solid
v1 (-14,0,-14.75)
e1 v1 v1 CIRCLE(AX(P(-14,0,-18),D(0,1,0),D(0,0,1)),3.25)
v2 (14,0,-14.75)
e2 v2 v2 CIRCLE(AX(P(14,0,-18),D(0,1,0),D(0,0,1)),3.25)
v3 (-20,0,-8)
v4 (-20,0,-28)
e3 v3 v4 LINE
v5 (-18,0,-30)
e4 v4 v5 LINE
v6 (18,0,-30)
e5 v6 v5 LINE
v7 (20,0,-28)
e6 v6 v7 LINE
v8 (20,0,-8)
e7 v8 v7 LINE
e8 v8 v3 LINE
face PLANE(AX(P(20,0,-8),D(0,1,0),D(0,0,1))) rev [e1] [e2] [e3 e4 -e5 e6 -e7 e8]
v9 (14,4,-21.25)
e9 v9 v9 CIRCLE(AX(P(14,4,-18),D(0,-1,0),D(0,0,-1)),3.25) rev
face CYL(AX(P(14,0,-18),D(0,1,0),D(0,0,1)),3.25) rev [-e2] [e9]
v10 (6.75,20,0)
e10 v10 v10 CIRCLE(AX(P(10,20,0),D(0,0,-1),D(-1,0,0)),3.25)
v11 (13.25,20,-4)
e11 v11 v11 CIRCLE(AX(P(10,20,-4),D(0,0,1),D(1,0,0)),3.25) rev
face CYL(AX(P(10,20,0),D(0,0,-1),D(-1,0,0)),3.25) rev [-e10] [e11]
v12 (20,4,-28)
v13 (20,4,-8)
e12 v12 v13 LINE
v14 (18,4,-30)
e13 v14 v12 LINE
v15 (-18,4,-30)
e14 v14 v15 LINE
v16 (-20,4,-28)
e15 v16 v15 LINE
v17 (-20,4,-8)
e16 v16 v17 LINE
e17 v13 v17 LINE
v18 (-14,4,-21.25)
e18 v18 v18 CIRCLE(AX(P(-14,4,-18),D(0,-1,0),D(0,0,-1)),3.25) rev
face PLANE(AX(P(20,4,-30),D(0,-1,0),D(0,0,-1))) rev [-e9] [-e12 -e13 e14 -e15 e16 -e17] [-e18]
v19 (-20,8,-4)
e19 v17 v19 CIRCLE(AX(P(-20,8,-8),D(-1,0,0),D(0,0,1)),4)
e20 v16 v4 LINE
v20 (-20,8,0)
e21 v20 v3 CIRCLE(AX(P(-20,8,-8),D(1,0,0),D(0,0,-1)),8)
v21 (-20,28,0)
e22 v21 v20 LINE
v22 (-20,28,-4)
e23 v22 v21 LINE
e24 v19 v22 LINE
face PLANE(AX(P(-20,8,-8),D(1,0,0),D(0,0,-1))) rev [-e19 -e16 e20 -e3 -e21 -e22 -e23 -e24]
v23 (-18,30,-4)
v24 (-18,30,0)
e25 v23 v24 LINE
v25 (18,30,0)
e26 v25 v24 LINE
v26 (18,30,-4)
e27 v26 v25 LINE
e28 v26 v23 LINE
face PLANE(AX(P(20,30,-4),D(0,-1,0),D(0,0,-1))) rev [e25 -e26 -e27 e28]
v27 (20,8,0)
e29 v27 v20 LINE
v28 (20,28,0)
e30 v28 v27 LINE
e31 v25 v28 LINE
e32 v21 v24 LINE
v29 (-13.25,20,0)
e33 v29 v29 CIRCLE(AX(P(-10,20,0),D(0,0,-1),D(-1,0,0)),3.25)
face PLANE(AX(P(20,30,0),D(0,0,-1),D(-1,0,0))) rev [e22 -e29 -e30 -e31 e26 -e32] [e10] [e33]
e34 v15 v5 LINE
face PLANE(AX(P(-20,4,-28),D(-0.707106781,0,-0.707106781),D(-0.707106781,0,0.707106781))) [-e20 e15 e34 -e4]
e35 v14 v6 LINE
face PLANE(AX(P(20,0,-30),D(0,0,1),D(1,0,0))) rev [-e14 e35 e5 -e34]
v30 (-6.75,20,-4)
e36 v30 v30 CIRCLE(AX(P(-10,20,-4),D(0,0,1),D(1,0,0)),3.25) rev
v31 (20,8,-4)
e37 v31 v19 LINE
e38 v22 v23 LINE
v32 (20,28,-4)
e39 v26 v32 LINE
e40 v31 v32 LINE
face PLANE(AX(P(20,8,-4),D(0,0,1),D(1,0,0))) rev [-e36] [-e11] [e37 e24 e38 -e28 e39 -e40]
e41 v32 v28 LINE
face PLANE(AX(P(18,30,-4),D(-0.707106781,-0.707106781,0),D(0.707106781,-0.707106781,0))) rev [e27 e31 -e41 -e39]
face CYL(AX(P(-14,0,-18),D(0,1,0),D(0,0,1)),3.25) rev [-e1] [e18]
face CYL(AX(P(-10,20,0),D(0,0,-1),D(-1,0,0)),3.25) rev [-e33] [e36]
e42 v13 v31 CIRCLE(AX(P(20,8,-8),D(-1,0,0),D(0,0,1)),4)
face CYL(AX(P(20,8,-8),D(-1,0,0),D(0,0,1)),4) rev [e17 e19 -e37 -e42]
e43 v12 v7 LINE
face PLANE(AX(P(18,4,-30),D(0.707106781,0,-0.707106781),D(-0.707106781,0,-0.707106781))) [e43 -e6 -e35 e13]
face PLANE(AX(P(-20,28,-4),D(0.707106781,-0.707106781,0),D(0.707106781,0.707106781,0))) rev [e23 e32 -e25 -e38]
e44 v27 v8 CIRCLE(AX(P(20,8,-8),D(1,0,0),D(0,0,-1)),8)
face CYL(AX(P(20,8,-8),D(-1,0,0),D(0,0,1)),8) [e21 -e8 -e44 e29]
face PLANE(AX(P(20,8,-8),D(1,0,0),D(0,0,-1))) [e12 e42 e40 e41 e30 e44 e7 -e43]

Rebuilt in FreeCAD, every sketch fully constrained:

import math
import FreeCAD as App
import Part
import Sketcher

V = App.Vector
Q = App.Units.Quantity


def add_polygon(sketch, points):
    """Adds a closed chain of lines whose ends are joined by coincident constraints."""
    first, n = sketch.GeometryCount, len(points)
    for a, b in zip(points, points[1:] + points[:1]):
        sketch.addGeometry(Part.LineSegment(App.Vector(*a, 0), App.Vector(*b, 0)), False)
    for i in range(n):
        sketch.addConstraint(Sketcher.Constraint("Coincident", first + i, 2, first + (i + 1) % n, 1))

doc = App.newDocument("Part")
body = doc.addObject("PartDesign::Body", "Body")

# Sketch on YZ plane
sketch1 = body.newObject("Sketcher::SketchObject", "Sketch")
sketch1.AttachmentSupport = (doc.getObject("YZ_Plane"), [""])
sketch1.MapMode = "FlatFace"
sketch1.addGeometry(Part.LineSegment(V(0, -8, 0), V(0, -30, 0)), False)
sketch1.addGeometry(Part.LineSegment(V(0, -30, 0), V(4, -30, 0)), False)
sketch1.addGeometry(Part.LineSegment(V(4, -30, 0), V(4, -8, 0)), False)
sketch1.addGeometry(Part.ArcOfCircle(Part.Circle(V(8, -8, 0), V(0, 0, 1), 4), math.radians(90), math.radians(180)), False)
sketch1.addGeometry(Part.LineSegment(V(8, -4, 0), V(30, -4, 0)), False)
sketch1.addGeometry(Part.LineSegment(V(30, -4, 0), V(30, 0, 0)), False)
sketch1.addGeometry(Part.LineSegment(V(30, 0, 0), V(8, 0, 0)), False)
sketch1.addGeometry(Part.ArcOfCircle(Part.Circle(V(8, -8, 0), V(0, 0, 1), 8), math.radians(90), math.radians(180)), False)
sketch1.addConstraint(Sketcher.Constraint("Coincident", 0, 2, 1, 1))
sketch1.addConstraint(Sketcher.Constraint("Coincident", 1, 2, 2, 1))
sketch1.addConstraint(Sketcher.Constraint("Tangent", 2, 2, 3, 2))
sketch1.addConstraint(Sketcher.Constraint("Tangent", 3, 1, 4, 1))
sketch1.addConstraint(Sketcher.Constraint("Coincident", 4, 2, 5, 1))
sketch1.addConstraint(Sketcher.Constraint("Coincident", 5, 2, 6, 1))
sketch1.addConstraint(Sketcher.Constraint("Tangent", 6, 2, 7, 1))
sketch1.addConstraint(Sketcher.Constraint("Tangent", 7, 2, 0, 1))
sketch1.addConstraint(Sketcher.Constraint("Vertical", 0))
sketch1.addConstraint(Sketcher.Constraint("Horizontal", 1))
sketch1.addConstraint(Sketcher.Constraint("Vertical", 2))
sketch1.addConstraint(Sketcher.Constraint("Horizontal", 4))
sketch1.addConstraint(Sketcher.Constraint("Vertical", 5))
sketch1.addConstraint(Sketcher.Constraint("Horizontal", 6))
sketch1.addConstraint(Sketcher.Constraint("Coincident", 7, 3, 3, 3))
sketch1.addConstraint(Sketcher.Constraint("PointOnObject", 0, 2, -2))
sketch1.addConstraint(Sketcher.Constraint("PointOnObject", 5, 2, -1))
sketch1.addConstraint(Sketcher.Constraint("Equal", 6, 0))
sketch1.addConstraint(Sketcher.Constraint("Radius", 3, Q("4 mm")))
sketch1.addConstraint(Sketcher.Constraint("Radius", 7, Q("8 mm")))
sketch1.addConstraint(Sketcher.Constraint("DistanceX", 4, 1, 4, 2, Q("22 mm")))
pad1 = body.newObject("PartDesign::Pad", "Pad")
pad1.Profile = sketch1
pad1.Type = "TwoLengths"
pad1.Length = 20
pad1.Length2 = 20

# Sketch on XY plane
sketch2 = body.newObject("Sketcher::SketchObject", "Sketch001")
sketch2.AttachmentSupport = (doc.getObject("XY_Plane"), [""])
sketch2.MapMode = "FlatFace"
add_polygon(sketch2, [(-22, 32), (-22, 27), (-20, 27), (-20, 28), (-18, 30), (18, 30), (20, 28), (20, 27), (22, 27), (22, 32)])  # lines 0-9
sketch2.addConstraint(Sketcher.Constraint("Vertical", 0))
sketch2.addConstraint(Sketcher.Constraint("Horizontal", 1))
sketch2.addConstraint(Sketcher.Constraint("Vertical", 2))
sketch2.addConstraint(Sketcher.Constraint("Horizontal", 4))
sketch2.addConstraint(Sketcher.Constraint("Vertical", 6))
sketch2.addConstraint(Sketcher.Constraint("Horizontal", 7))
sketch2.addConstraint(Sketcher.Constraint("Vertical", 8))
sketch2.addConstraint(Sketcher.Constraint("Horizontal", 9))
sketch2.addConstraint(Sketcher.Constraint("Symmetric", 2, 2, 5, 2, -2))
sketch2.addConstraint(Sketcher.Constraint("Symmetric", 0, 2, 7, 2, -2))
sketch2.addConstraint(Sketcher.Constraint("Perpendicular", 3, 5))
sketch2.addConstraint(Sketcher.Constraint("Equal", 3, 5))
sketch2.addConstraint(Sketcher.Constraint("DistanceX", 1, 1, 1, 2, Q("2 mm")))
sketch2.addConstraint(Sketcher.Constraint("DistanceX", 4, 1, 4, 2, Q("36 mm")))
sketch2.addConstraint(Sketcher.Constraint("DistanceX", 9, 2, 9, 1, Q("44 mm")))
sketch2.addConstraint(Sketcher.Constraint("DistanceY", 0, 2, 0, 1, Q("5 mm")))
sketch2.addConstraint(Sketcher.Constraint("DistanceY", 2, 1, 2, 2, Q("1 mm")))
sketch2.addConstraint(Sketcher.Constraint("DistanceY", -1, 1, 0, 2, Q("27 mm")))
pocket1 = body.newObject("PartDesign::Pocket", "Pocket")
pocket1.Profile = sketch2
pocket1.Length = 4

# Sketch on XZ plane
sketch3 = body.newObject("Sketcher::SketchObject", "Sketch002")
sketch3.AttachmentSupport = (doc.getObject("XZ_Plane"), [""])
sketch3.MapMode = "FlatFace"
add_polygon(sketch3, [(-22, -32), (-22, -27), (-20, -27), (-20, -28), (-18, -30), (18, -30), (20, -28), (20, -27), (22, -27), (22, -32)])  # lines 0-9
sketch3.addConstraint(Sketcher.Constraint("Vertical", 0))
sketch3.addConstraint(Sketcher.Constraint("Horizontal", 1))
sketch3.addConstraint(Sketcher.Constraint("Vertical", 2))
sketch3.addConstraint(Sketcher.Constraint("Horizontal", 4))
sketch3.addConstraint(Sketcher.Constraint("Vertical", 6))
sketch3.addConstraint(Sketcher.Constraint("Horizontal", 7))
sketch3.addConstraint(Sketcher.Constraint("Vertical", 8))
sketch3.addConstraint(Sketcher.Constraint("Horizontal", 9))
sketch3.addConstraint(Sketcher.Constraint("Symmetric", 2, 2, 5, 2, -2))
sketch3.addConstraint(Sketcher.Constraint("Symmetric", 0, 2, 7, 2, -2))
sketch3.addConstraint(Sketcher.Constraint("Perpendicular", 3, 5))
sketch3.addConstraint(Sketcher.Constraint("Equal", 3, 5))
sketch3.addConstraint(Sketcher.Constraint("DistanceX", 1, 1, 1, 2, Q("2 mm")))
sketch3.addConstraint(Sketcher.Constraint("DistanceX", 4, 1, 4, 2, Q("36 mm")))
sketch3.addConstraint(Sketcher.Constraint("DistanceX", 9, 2, 9, 1, Q("44 mm")))
sketch3.addConstraint(Sketcher.Constraint("DistanceY", 0, 1, 0, 2, Q("5 mm")))
sketch3.addConstraint(Sketcher.Constraint("DistanceY", 2, 2, 2, 1, Q("1 mm")))
sketch3.addConstraint(Sketcher.Constraint("DistanceY", 0, 2, -1, 1, Q("27 mm")))
pocket2 = body.newObject("PartDesign::Pocket", "Pocket001")
pocket2.Profile = sketch3
pocket2.Length = 4

# Sketch on XZ plane
sketch4 = body.newObject("Sketcher::SketchObject", "Sketch003")
sketch4.AttachmentSupport = (doc.getObject("XZ_Plane"), [""])
sketch4.MapMode = "FlatFace"
sketch4.AttachmentOffset = App.Placement(V(0, 0, -20), App.Rotation())
add_polygon(sketch4, [(10, -9), (10, 0), (13.2, 0), (13.2, -9)])  # lines 0-3
sketch4.addGeometry(Part.LineSegment(V(10, 0, 0), V(10, -9, 0)), True)  # axis
sketch4.addConstraint(Sketcher.Constraint("Vertical", 0))
sketch4.addConstraint(Sketcher.Constraint("Horizontal", 1))
sketch4.addConstraint(Sketcher.Constraint("Vertical", 2))
sketch4.addConstraint(Sketcher.Constraint("Horizontal", 3))
sketch4.addConstraint(Sketcher.Constraint("Vertical", 4))
sketch4.addConstraint(Sketcher.Constraint("Coincident", 4, 1, 0, 2))
sketch4.addConstraint(Sketcher.Constraint("PointOnObject", 0, 2, -1))
sketch4.addConstraint(Sketcher.Constraint("Horizontal", 2, 2, 4, 2))
sketch4.addConstraint(Sketcher.Constraint("DistanceY", 0, 1, 0, 2, Q("9 mm")))
sketch4.addConstraint(Sketcher.Constraint("DistanceX", -1, 1, 0, 2, Q("10 mm")))
sketch4.addConstraint(Sketcher.Constraint("DistanceX", 1, 1, 1, 2, Q("3.25 mm")))
groove = body.newObject("PartDesign::Groove", "Groove")
groove.Profile = sketch4
groove.ReferenceAxis = (sketch4, ["Axis0"])
groove.Angle = 360

# Sketch on XZ plane
sketch5 = body.newObject("Sketcher::SketchObject", "Sketch004")
sketch5.AttachmentSupport = (doc.getObject("XZ_Plane"), [""])
sketch5.MapMode = "FlatFace"
sketch5.AttachmentOffset = App.Placement(V(0, 0, -20), App.Rotation())
add_polygon(sketch5, [(-10, -9), (-10, 0), (-6.8, 0), (-6.8, -9)])  # lines 0-3
sketch5.addGeometry(Part.LineSegment(V(-10, 0, 0), V(-10, -9, 0)), True)  # axis
sketch5.addConstraint(Sketcher.Constraint("Vertical", 0))
sketch5.addConstraint(Sketcher.Constraint("Horizontal", 1))
sketch5.addConstraint(Sketcher.Constraint("Vertical", 2))
sketch5.addConstraint(Sketcher.Constraint("Horizontal", 3))
sketch5.addConstraint(Sketcher.Constraint("Vertical", 4))
sketch5.addConstraint(Sketcher.Constraint("Coincident", 4, 1, 0, 2))
sketch5.addConstraint(Sketcher.Constraint("PointOnObject", 0, 2, -1))
sketch5.addConstraint(Sketcher.Constraint("Horizontal", 2, 2, 4, 2))
sketch5.addConstraint(Sketcher.Constraint("DistanceY", 0, 1, 0, 2, Q("9 mm")))
sketch5.addConstraint(Sketcher.Constraint("DistanceX", 0, 2, -1, 1, Q("10 mm")))
sketch5.addConstraint(Sketcher.Constraint("DistanceX", 1, 1, 1, 2, Q("3.25 mm")))
groove2 = body.newObject("PartDesign::Groove", "Groove001")
groove2.Profile = sketch5
groove2.ReferenceAxis = (sketch5, ["Axis0"])
groove2.Angle = 360

# Sketch on XY plane
sketch6 = body.newObject("Sketcher::SketchObject", "Sketch005")
sketch6.AttachmentSupport = (doc.getObject("XY_Plane"), [""])
sketch6.MapMode = "FlatFace"
sketch6.AttachmentOffset = App.Placement(V(0, 0, -18), App.Rotation())
add_polygon(sketch6, [(14, 9), (14, 0), (17.2, 0), (17.2, 9)])  # lines 0-3
sketch6.addGeometry(Part.LineSegment(V(14, 0, 0), V(14, 9, 0)), True)  # axis
sketch6.addConstraint(Sketcher.Constraint("Vertical", 0))
sketch6.addConstraint(Sketcher.Constraint("Horizontal", 1))
sketch6.addConstraint(Sketcher.Constraint("Vertical", 2))
sketch6.addConstraint(Sketcher.Constraint("Horizontal", 3))
sketch6.addConstraint(Sketcher.Constraint("Vertical", 4))
sketch6.addConstraint(Sketcher.Constraint("Coincident", 4, 1, 0, 2))
sketch6.addConstraint(Sketcher.Constraint("PointOnObject", 0, 2, -1))
sketch6.addConstraint(Sketcher.Constraint("Horizontal", 2, 2, 4, 2))
sketch6.addConstraint(Sketcher.Constraint("DistanceY", 0, 2, 0, 1, Q("9 mm")))
sketch6.addConstraint(Sketcher.Constraint("DistanceX", -1, 1, 0, 2, Q("14 mm")))
sketch6.addConstraint(Sketcher.Constraint("DistanceX", 1, 1, 1, 2, Q("3.25 mm")))
groove3 = body.newObject("PartDesign::Groove", "Groove002")
groove3.Profile = sketch6
groove3.ReferenceAxis = (sketch6, ["Axis0"])
groove3.Angle = 360

# Sketch on XY plane
sketch7 = body.newObject("Sketcher::SketchObject", "Sketch006")
sketch7.AttachmentSupport = (doc.getObject("XY_Plane"), [""])
sketch7.MapMode = "FlatFace"
sketch7.AttachmentOffset = App.Placement(V(0, 0, -18), App.Rotation())
add_polygon(sketch7, [(-14, 9), (-14, 0), (-10.8, 0), (-10.8, 9)])  # lines 0-3
sketch7.addGeometry(Part.LineSegment(V(-14, 0, 0), V(-14, 9, 0)), True)  # axis
sketch7.addConstraint(Sketcher.Constraint("Vertical", 0))
sketch7.addConstraint(Sketcher.Constraint("Horizontal", 1))
sketch7.addConstraint(Sketcher.Constraint("Vertical", 2))
sketch7.addConstraint(Sketcher.Constraint("Horizontal", 3))
sketch7.addConstraint(Sketcher.Constraint("Vertical", 4))
sketch7.addConstraint(Sketcher.Constraint("Coincident", 4, 1, 0, 2))
sketch7.addConstraint(Sketcher.Constraint("PointOnObject", 0, 2, -1))
sketch7.addConstraint(Sketcher.Constraint("Horizontal", 2, 2, 4, 2))
sketch7.addConstraint(Sketcher.Constraint("DistanceY", 0, 2, 0, 1, Q("9 mm")))
sketch7.addConstraint(Sketcher.Constraint("DistanceX", 0, 2, -1, 1, Q("14 mm")))
sketch7.addConstraint(Sketcher.Constraint("DistanceX", 1, 1, 1, 2, Q("3.25 mm")))
groove4 = body.newObject("PartDesign::Groove", "Groove003")
groove4.Profile = sketch7
groove4.ReferenceAxis = (sketch7, ["Axis0"])
groove4.Angle = 360

doc.recompute()
